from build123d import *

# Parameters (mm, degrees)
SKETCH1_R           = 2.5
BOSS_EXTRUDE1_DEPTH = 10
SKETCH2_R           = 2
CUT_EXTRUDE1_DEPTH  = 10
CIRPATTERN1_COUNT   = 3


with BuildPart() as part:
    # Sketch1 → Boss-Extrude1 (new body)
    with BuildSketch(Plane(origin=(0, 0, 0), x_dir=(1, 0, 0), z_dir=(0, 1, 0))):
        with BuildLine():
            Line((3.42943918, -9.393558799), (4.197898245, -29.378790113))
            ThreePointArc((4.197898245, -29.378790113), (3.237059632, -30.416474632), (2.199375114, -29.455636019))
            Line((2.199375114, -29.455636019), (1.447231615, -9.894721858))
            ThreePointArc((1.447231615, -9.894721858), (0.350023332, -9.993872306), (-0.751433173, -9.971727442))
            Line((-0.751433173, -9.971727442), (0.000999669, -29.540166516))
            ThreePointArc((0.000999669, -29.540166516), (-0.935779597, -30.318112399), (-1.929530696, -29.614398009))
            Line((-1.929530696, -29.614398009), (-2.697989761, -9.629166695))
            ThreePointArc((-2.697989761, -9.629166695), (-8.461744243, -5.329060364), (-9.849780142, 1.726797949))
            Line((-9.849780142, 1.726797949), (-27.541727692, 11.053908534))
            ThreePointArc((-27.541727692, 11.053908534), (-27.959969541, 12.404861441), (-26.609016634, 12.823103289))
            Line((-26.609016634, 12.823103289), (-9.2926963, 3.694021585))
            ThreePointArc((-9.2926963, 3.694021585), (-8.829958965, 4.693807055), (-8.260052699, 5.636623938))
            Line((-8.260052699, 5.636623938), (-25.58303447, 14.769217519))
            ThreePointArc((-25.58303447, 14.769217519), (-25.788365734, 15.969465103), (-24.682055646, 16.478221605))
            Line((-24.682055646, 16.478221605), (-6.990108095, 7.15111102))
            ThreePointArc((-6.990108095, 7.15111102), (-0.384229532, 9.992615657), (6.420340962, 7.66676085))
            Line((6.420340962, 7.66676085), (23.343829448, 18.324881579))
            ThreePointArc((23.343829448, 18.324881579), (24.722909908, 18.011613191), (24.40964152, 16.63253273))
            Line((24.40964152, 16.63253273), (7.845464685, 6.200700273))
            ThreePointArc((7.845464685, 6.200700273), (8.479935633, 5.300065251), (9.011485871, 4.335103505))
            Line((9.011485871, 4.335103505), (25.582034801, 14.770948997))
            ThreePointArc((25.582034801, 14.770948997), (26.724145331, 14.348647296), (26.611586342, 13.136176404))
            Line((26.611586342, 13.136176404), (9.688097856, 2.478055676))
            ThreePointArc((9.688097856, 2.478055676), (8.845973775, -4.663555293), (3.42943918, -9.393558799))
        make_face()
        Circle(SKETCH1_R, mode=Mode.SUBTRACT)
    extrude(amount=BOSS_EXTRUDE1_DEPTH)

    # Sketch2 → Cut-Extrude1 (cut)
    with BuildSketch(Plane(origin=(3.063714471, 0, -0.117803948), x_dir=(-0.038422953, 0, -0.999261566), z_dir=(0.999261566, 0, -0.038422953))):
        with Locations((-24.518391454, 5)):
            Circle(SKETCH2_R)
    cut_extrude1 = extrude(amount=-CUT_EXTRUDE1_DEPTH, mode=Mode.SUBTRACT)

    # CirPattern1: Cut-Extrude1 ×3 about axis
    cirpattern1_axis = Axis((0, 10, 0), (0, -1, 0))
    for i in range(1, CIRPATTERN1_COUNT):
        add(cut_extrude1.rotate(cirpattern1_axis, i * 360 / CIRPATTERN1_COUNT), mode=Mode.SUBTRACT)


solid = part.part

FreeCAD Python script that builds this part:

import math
import FreeCAD as App
import Part
import Sketcher

V = App.Vector

doc = App.newDocument("Part")
body = doc.addObject("PartDesign::Body", "Body")

# Sketch on XZ plane
sketch1 = body.newObject("Sketcher::SketchObject", "Sketch")
sketch1.AttachmentSupport = (doc.getObject("XZ_Plane"), [""])
sketch1.MapMode = "FlatFace"
sketch1.addGeometry(Part.LineSegment(V(4.2, 29.4, 0), V(3.4, 9.4, 0)), False)
sketch1.addGeometry(Part.ArcOfCircle(Part.Circle(V(0, 0, 0), V(0, 0, 1), 10), math.radians(-14), math.radians(70)), False)
sketch1.addGeometry(Part.LineSegment(V(9.7, -2.5, 0), V(26.6, -13.1, 0)), False)
sketch1.addGeometry(Part.ArcOfCircle(Part.Circle(V(25.9, -13.8, 0), V(0, 0, 1), 1), math.radians(-107), math.radians(43)), False)
sketch1.addGeometry(Part.LineSegment(V(25.6, -14.8, 0), V(9, -4.3, 0)), False)
sketch1.addGeometry(Part.ArcOfCircle(Part.Circle(V(0, 0, 0), V(0, 0, 1), 10), math.radians(-38.32), math.radians(-25.69)), False)
sketch1.addGeometry(Part.LineSegment(V(7.8, -6.2, 0), V(24.4, -16.6, 0)), False)
sketch1.addGeometry(Part.ArcOfCircle(Part.Circle(V(23.9, -17.5, 0), V(0, 0, 1), 1), math.radians(-122), math.radians(58)), False)
sketch1.addGeometry(Part.LineSegment(V(23.3, -18.3, 0), V(6.4, -7.7, 0)), False)
sketch1.addGeometry(Part.ArcOfCircle(Part.Circle(V(0, 0, 0), V(0, 0, 1), 10), math.radians(-134), math.radians(-50)), False)
sketch1.addGeometry(Part.LineSegment(V(-7, -7.2, 0), V(-24.7, -16.5, 0)), False)
sketch1.addGeometry(Part.ArcOfCircle(Part.Circle(V(-24.9, -15.5, 0), V(0, 0, 1), 1), math.radians(133), math.radians(283)), False)
sketch1.addGeometry(Part.LineSegment(V(-25.6, -14.8, 0), V(-8.3, -5.6, 0)), False)
sketch1.addGeometry(Part.ArcOfCircle(Part.Circle(V(0, 0, 0), V(0, 0, 1), 10), math.radians(-158.32), math.radians(-145.69)), False)
sketch1.addGeometry(Part.LineSegment(V(-9.3, -3.7, 0), V(-26.6, -12.8, 0)), False)
sketch1.addGeometry(Part.ArcOfCircle(Part.Circle(V(-27.1, -11.9, 0), V(0, 0, 1), 1), math.radians(118), math.radians(298)), False)
sketch1.addGeometry(Part.LineSegment(V(-27.5, -11.1, 0), V(-9.8, -1.7, 0)), False)
sketch1.addGeometry(Part.ArcOfCircle(Part.Circle(V(0, 0, 0), V(0, 0, 1), 10), math.radians(106), math.radians(190)), False)
sketch1.addGeometry(Part.LineSegment(V(-2.7, 9.6, 0), V(-1.9, 29.6, 0)), False)
sketch1.addGeometry(Part.ArcOfCircle(Part.Circle(V(-1, 29.3, 0), V(0, 0, 1), 1), math.radians(13), math.radians(163)), False)
sketch1.addGeometry(Part.LineSegment(V(0, 29.5, 0), V(-0.8, 10, 0)), False)
sketch1.addGeometry(Part.ArcOfCircle(Part.Circle(V(0, 0, 0), V(0, 0, 1), 10), math.radians(81.68), math.radians(94.31)), False)
sketch1.addGeometry(Part.LineSegment(V(1.4, 9.9, 0), V(2.2, 29.5, 0)), False)
sketch1.addGeometry(Part.ArcOfCircle(Part.Circle(V(3.2, 29.4, 0), V(0, 0, 1), 1), math.radians(-2), math.radians(178)), False)
sketch1.addGeometry(Part.Circle(V(0, 0, 0), V(0, 0, 1), 2.5), False)
sketch1.addConstraint(Sketcher.Constraint("Coincident", 0, 2, 1, 2))
sketch1.addConstraint(Sketcher.Constraint("Coincident", 1, 1, 2, 1))
sketch1.addConstraint(Sketcher.Constraint("Coincident", 2, 2, 3, 2))
sketch1.addConstraint(Sketcher.Constraint("Coincident", 3, 1, 4, 1))
sketch1.addConstraint(Sketcher.Constraint("Coincident", 4, 2, 5, 2))
sketch1.addConstraint(Sketcher.Constraint("Coincident", 5, 1, 6, 1))
sketch1.addConstraint(Sketcher.Constraint("Tangent", 6, 2, 7, 2))
sketch1.addConstraint(Sketcher.Constraint("Tangent", 7, 1, 8, 1))
sketch1.addConstraint(Sketcher.Constraint("Coincident", 8, 2, 9, 2))
sketch1.addConstraint(Sketcher.Constraint("Coincident", 9, 1, 10, 1))
sketch1.addConstraint(Sketcher.Constraint("Coincident", 10, 2, 11, 2))
sketch1.addConstraint(Sketcher.Constraint("Coincident", 11, 1, 12, 1))
sketch1.addConstraint(Sketcher.Constraint("Coincident", 12, 2, 13, 2))
sketch1.addConstraint(Sketcher.Constraint("Coincident", 13, 1, 14, 1))
sketch1.addConstraint(Sketcher.Constraint("Tangent", 14, 2, 15, 2))
sketch1.addConstraint(Sketcher.Constraint("Tangent", 15, 1, 16, 1))
sketch1.addConstraint(Sketcher.Constraint("Coincident", 16, 2, 17, 2))
sketch1.addConstraint(Sketcher.Constraint("Coincident", 17, 1, 18, 1))
sketch1.addConstraint(Sketcher.Constraint("Coincident", 18, 2, 19, 2))
sketch1.addConstraint(Sketcher.Constraint("Coincident", 19, 1, 20, 1))
sketch1.addConstraint(Sketcher.Constraint("Coincident", 20, 2, 21, 2))
sketch1.addConstraint(Sketcher.Constraint("Coincident", 21, 1, 22, 1))
sketch1.addConstraint(Sketcher.Constraint("Tangent", 22, 2, 23, 2))
sketch1.addConstraint(Sketcher.Constraint("Tangent", 23, 1, 0, 1))
sketch1.addConstraint(Sketcher.Constraint("Coincident", 1, 3, -1, 1))
sketch1.addConstraint(Sketcher.Constraint("Coincident", 5, 3, -1, 1))
sketch1.addConstraint(Sketcher.Constraint("Coincident", 9, 3, -1, 1))
sketch1.addConstraint(Sketcher.Constraint("Coincident", 13, 3, -1, 1))
sketch1.addConstraint(Sketcher.Constraint("Coincident", 17, 3, -1, 1))
sketch1.addConstraint(Sketcher.Constraint("Coincident", 21, 3, -1, 1))
sketch1.addConstraint(Sketcher.Constraint("Coincident", 24, 3, -1, 1))
sketch1.addConstraint(Sketcher.Constraint("Equal", 1, 5))
sketch1.addConstraint(Sketcher.Constraint("Equal", 3, 7))
sketch1.addConstraint(Sketcher.Constraint("Equal", 5, 9))
sketch1.addConstraint(Sketcher.Constraint("Equal", 7, 11))
sketch1.addConstraint(Sketcher.Constraint("Equal", 9, 13))
sketch1.addConstraint(Sketcher.Constraint("Equal", 11, 15))
sketch1.addConstraint(Sketcher.Constraint("Equal", 13, 17))
sketch1.addConstraint(Sketcher.Constraint("Equal", 15, 19))
sketch1.addConstraint(Sketcher.Constraint("Equal", 17, 21))
sketch1.addConstraint(Sketcher.Constraint("Equal", 19, 23))
sketch1.addConstraint(Sketcher.Constraint("Parallel", 2, 4))
sketch1.addConstraint(Sketcher.Constraint("Parallel", 4, 6))
sketch1.addConstraint(Sketcher.Constraint("Parallel", 6, 8))
sketch1.addConstraint(Sketcher.Constraint("Parallel", 10, 12))
sketch1.addConstraint(Sketcher.Constraint("Parallel", 12, 14))
sketch1.addConstraint(Sketcher.Constraint("Parallel", 14, 16))
sketch1.addConstraint(Sketcher.Constraint("Parallel", 0, 18))
sketch1.addConstraint(Sketcher.Constraint("Parallel", 18, 20))
sketch1.addConstraint(Sketcher.Constraint("Parallel", 20, 22))
sketch1.addConstraint(Sketcher.Constraint("Equal", 0, 2))
sketch1.addConstraint(Sketcher.Constraint("Equal", 2, 8))
sketch1.addConstraint(Sketcher.Constraint("Equal", 8, 10))
sketch1.addConstraint(Sketcher.Constraint("Equal", 4, 12))
sketch1.addConstraint(Sketcher.Constraint("Equal", 6, 14))
sketch1.addConstraint(Sketcher.Constraint("Equal", 10, 16))
sketch1.addConstraint(Sketcher.Constraint("Equal", 16, 18))
sketch1.addConstraint(Sketcher.Constraint("Equal", 12, 20))
sketch1.addConstraint(Sketcher.Constraint("Equal", 14, 22))
sketch1.addConstraint(Sketcher.Constraint("Diameter", 24, 5.0))
sketch1.addConstraint(Sketcher.Constraint("Radius", 1, 10.0))
sketch1.addConstraint(Sketcher.Constraint("Radius", 3, 1.0))
sketch1.addConstraint(Sketcher.Constraint("Distance", 0, 20.0))
sketch1.addConstraint(Sketcher.Constraint("DistanceX", -1, 1, 19, 1, 0.001))
sketch1.addConstraint(Sketcher.Constraint("DistanceY", 17, 1, 19, 1, 19.911))
sketch1.addConstraint(Sketcher.Constraint("Distance", 4, 19.5829))
sketch1.addConstraint(Sketcher.Constraint("DistanceY", 5, 1, -1, 1, 6.2007))
sketch1.addConstraint(Sketcher.Constraint("DistanceY", -1, 1, 18, 2, 29.614398))
sketch1.addConstraint(Sketcher.Constraint("DistanceX", -1, 1, 23, 1, 4.197898))
sketch1.addConstraint(Sketcher.Constraint("DistanceX", 7, 3, 3, 1, 1.705299))
sketch1.addConstraint(Sketcher.Constraint("DistanceY", 11, 3, 15, 1, 4.449201))
sketch1.addConstraint(Sketcher.Constraint("DistanceX", -1, 1, 3, 3, 25.877971))
sketch1.addConstraint(Sketcher.Constraint("DistanceX", 11, 3, -1, 1, 24.903768))
sketch1.addConstraint(Sketcher.Constraint("DistanceY", 11, 3, -1, 1, 15.50311))
pad1 = body.newObject("PartDesign::Pad", "Pad")
pad1.Profile = sketch1
pad1.Length = 10
pad1.Reversed = True

# Sketch on an angled plane
sketch2 = body.newObject("Sketcher::SketchObject", "Sketch001")
sketch2.Placement = App.Placement(V(3.063714, 0, -0.117804), App.Rotation(V(-0.038422953, 0, -0.999261566), V(0, 1.000000001, 0), V(0.999261566, 0, -0.038422953), "ZXY"))
sketch2.addGeometry(Part.Circle(V(-24.5, 5, 0), V(0, 0, 1), 2), False)
sketch2.addConstraint(Sketcher.Constraint("Diameter", 0, 4.0))
sketch2.addConstraint(Sketcher.Constraint("DistanceY", -1, 1, 0, 3, 5.0))
sketch2.addConstraint(Sketcher.Constraint("DistanceX", 0, 3, -1, 1, 24.518391))
pocket1 = body.newObject("PartDesign::Pocket", "Pocket")
pocket1.Profile = sketch2
pocket1.Length = 10
doc.recompute()

polarpattern = body.newObject("PartDesign::PolarPattern", "PolarPattern")
polarpattern.Originals = [pocket1]
polarpattern.Axis = (doc.getObject("Y_Axis"), [""])
polarpattern.Angle = 360
polarpattern.Occurrences = 3
body.Tip = polarpattern

doc.recompute()
